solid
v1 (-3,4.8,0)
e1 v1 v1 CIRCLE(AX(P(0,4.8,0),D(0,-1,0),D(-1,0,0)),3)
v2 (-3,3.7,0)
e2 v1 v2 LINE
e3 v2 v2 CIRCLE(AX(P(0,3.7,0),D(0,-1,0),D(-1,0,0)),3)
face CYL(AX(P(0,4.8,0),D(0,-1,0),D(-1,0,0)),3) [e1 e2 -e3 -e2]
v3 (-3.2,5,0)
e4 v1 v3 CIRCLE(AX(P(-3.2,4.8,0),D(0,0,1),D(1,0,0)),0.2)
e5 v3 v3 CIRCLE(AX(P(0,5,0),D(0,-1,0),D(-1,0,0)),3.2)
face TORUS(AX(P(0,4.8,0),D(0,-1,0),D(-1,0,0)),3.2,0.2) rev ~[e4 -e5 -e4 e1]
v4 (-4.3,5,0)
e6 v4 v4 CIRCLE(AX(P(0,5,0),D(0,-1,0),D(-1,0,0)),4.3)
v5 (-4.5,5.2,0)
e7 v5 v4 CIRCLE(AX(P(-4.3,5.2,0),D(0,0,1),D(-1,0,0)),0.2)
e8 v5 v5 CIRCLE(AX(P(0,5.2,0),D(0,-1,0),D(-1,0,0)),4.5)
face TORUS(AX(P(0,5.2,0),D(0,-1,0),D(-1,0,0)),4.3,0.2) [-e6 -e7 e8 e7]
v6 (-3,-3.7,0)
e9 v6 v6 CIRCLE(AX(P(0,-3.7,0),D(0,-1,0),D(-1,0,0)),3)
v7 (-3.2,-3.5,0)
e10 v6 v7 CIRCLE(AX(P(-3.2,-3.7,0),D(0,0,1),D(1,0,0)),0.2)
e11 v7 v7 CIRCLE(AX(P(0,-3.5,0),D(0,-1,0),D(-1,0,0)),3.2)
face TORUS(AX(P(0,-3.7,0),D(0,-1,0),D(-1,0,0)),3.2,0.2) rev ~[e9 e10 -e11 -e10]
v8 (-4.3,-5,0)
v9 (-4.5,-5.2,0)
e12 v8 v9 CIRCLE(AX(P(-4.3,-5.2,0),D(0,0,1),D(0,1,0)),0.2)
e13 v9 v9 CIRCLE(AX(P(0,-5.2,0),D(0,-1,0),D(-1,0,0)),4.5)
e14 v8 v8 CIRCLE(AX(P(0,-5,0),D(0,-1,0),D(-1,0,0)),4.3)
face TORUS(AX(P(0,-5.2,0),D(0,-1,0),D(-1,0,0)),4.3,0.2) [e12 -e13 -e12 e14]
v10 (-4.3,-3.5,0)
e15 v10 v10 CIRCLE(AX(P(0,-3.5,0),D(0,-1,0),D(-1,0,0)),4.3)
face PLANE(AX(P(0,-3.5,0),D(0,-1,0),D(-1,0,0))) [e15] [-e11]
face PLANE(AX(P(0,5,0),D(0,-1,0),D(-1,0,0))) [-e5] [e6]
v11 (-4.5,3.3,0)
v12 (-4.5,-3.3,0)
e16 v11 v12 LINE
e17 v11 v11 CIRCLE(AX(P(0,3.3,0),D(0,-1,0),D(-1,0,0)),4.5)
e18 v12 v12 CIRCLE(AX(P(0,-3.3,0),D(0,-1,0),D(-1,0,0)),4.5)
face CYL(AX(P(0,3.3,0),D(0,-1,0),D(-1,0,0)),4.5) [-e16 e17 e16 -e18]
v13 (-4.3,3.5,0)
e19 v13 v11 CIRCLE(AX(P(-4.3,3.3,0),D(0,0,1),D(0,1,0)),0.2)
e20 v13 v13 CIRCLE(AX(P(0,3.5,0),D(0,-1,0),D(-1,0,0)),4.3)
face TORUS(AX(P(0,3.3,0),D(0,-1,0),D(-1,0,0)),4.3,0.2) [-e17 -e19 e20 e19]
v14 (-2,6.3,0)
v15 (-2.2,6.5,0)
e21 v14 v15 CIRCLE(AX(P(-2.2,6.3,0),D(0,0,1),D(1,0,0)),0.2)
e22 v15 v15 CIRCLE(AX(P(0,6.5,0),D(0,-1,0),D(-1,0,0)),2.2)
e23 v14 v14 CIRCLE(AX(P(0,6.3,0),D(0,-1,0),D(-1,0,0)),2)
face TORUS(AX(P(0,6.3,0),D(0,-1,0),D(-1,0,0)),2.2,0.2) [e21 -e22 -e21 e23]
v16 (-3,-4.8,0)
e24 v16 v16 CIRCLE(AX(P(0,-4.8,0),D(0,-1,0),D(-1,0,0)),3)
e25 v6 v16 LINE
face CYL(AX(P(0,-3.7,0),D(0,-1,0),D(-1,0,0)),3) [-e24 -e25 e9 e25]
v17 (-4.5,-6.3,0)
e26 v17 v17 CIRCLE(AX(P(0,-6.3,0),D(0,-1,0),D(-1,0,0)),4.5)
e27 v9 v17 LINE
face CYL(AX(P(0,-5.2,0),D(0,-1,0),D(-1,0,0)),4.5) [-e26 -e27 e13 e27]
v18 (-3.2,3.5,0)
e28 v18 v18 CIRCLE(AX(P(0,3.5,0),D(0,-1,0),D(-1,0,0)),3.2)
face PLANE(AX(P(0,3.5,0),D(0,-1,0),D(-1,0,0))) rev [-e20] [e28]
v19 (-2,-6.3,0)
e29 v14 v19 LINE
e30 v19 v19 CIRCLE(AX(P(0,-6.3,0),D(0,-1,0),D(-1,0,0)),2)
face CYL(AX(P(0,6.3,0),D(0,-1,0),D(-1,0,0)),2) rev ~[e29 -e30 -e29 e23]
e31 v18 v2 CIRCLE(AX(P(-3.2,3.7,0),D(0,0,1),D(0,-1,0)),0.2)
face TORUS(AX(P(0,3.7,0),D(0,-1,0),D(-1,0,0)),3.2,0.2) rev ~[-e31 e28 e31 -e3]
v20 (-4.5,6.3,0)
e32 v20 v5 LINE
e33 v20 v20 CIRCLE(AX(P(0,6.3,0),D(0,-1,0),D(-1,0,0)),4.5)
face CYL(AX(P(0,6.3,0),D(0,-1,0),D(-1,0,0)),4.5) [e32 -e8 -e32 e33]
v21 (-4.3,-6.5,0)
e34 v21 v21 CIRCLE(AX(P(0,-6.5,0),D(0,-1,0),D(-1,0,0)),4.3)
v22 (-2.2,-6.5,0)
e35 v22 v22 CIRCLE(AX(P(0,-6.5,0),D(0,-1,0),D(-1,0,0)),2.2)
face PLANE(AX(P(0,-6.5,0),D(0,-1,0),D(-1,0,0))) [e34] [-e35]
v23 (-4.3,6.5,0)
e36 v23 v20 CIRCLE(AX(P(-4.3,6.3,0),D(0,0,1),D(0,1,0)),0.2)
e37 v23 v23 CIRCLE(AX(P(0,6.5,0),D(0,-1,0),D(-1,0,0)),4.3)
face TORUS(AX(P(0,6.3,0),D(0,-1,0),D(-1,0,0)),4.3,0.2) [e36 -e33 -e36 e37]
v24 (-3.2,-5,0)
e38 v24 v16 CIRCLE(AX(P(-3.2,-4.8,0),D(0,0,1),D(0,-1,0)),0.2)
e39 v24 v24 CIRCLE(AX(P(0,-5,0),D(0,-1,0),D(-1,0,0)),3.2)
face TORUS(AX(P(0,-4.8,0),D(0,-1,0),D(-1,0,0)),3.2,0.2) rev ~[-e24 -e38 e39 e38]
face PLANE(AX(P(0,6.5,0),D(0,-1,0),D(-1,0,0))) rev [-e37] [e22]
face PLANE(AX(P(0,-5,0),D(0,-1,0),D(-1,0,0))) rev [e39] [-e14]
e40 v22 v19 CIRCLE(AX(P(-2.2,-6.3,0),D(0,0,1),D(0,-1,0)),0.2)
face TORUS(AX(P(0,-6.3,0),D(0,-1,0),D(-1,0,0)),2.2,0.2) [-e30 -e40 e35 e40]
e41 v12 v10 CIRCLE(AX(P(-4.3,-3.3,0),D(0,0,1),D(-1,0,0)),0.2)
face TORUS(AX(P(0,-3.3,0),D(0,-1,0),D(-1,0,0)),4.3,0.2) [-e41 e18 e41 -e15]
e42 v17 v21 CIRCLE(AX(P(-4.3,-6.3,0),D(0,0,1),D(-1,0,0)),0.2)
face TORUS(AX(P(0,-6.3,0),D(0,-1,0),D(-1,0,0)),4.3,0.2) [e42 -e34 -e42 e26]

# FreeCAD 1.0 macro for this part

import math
import FreeCAD as App
import Part
import Sketcher
from FreeCAD import Vector
Q = App.Units.Quantity

doc = App.newDocument("Part")
body = doc.addObject("PartDesign::Body", "Body")

# Sketch on XY plane
sketch1 = body.newObject("Sketcher::SketchObject", "Sketch")
sketch1.AttachmentSupport = (doc.getObject("XY_Plane"), [""])
sketch1.MapMode = "FlatFace"
sketch1.addGeometry([
    Part.ArcOfCircle(Part.Circle(Vector(-2.2, 6.3, 0), Vector(0, 0, 1), 0.2), math.radians(0), math.radians(90)),  # 0
    Part.LineSegment(Vector(-2.2, 6.5, 0), Vector(-4.3, 6.5, 0)),  # 1
    Part.ArcOfCircle(Part.Circle(Vector(-4.3, 6.3, 0), Vector(0, 0, 1), 0.2), math.radians(90), math.radians(180)),  # 2
    Part.LineSegment(Vector(-4.5, 6.3, 0), Vector(-4.5, 5.2, 0)),  # 3
    Part.ArcOfCircle(Part.Circle(Vector(-4.3, 5.2, 0), Vector(0, 0, 1), 0.2), math.radians(180), math.radians(270)),  # 4
    Part.LineSegment(Vector(-4.3, 5, 0), Vector(-3.2, 5, 0)),  # 5
    Part.ArcOfCircle(Part.Circle(Vector(-3.2, 4.8, 0), Vector(0, 0, 1), 0.2), math.radians(0), math.radians(90)),  # 6
    Part.LineSegment(Vector(-3, 4.8, 0), Vector(-3, 3.7, 0)),  # 7
    Part.ArcOfCircle(Part.Circle(Vector(-3.2, 3.7, 0), Vector(0, 0, 1), 0.2), math.radians(-90), math.radians(0)),  # 8
    Part.LineSegment(Vector(-3.2, 3.5, 0), Vector(-4.3, 3.5, 0)),  # 9
    Part.ArcOfCircle(Part.Circle(Vector(-4.3, 3.3, 0), Vector(0, 0, 1), 0.2), math.radians(90), math.radians(180)),  # 10
    Part.LineSegment(Vector(-4.5, 3.3, 0), Vector(-4.5, -3.3, 0)),  # 11
    Part.ArcOfCircle(Part.Circle(Vector(-4.3, -3.3, 0), Vector(0, 0, 1), 0.2), math.radians(180), math.radians(270)),  # 12
    Part.LineSegment(Vector(-4.3, -3.5, 0), Vector(-3.2, -3.5, 0)),  # 13
    Part.ArcOfCircle(Part.Circle(Vector(-3.2, -3.7, 0), Vector(0, 0, 1), 0.2), math.radians(0), math.radians(90)),  # 14
    Part.LineSegment(Vector(-3, -3.7, 0), Vector(-3, -4.8, 0)),  # 15
    Part.ArcOfCircle(Part.Circle(Vector(-3.2, -4.8, 0), Vector(0, 0, 1), 0.2), math.radians(-90), math.radians(0)),  # 16
    Part.LineSegment(Vector(-3.2, -5, 0), Vector(-4.3, -5, 0)),  # 17
    Part.ArcOfCircle(Part.Circle(Vector(-4.3, -5.2, 0), Vector(0, 0, 1), 0.2), math.radians(90), math.radians(180)),  # 18
    Part.LineSegment(Vector(-4.5, -5.2, 0), Vector(-4.5, -6.3, 0)),  # 19
    Part.ArcOfCircle(Part.Circle(Vector(-4.3, -6.3, 0), Vector(0, 0, 1), 0.2), math.radians(180), math.radians(270)),  # 20
    Part.LineSegment(Vector(-4.3, -6.5, 0), Vector(-2.2, -6.5, 0)),  # 21
    Part.ArcOfCircle(Part.Circle(Vector(-2.2, -6.3, 0), Vector(0, 0, 1), 0.2), math.radians(-90), math.radians(0)),  # 22
    Part.LineSegment(Vector(-2, -6.3, 0), Vector(-2, 6.3, 0)),  # 23
], False)
sketch1.addConstraint([
    Sketcher.Constraint("Tangent", 0, 2, 1, 1),
    Sketcher.Constraint("Tangent", 1, 2, 2, 1),
    Sketcher.Constraint("Tangent", 2, 2, 3, 1),
    Sketcher.Constraint("Tangent", 3, 2, 4, 1),
    Sketcher.Constraint("Tangent", 4, 2, 5, 1),
    Sketcher.Constraint("Tangent", 5, 2, 6, 2),
    Sketcher.Constraint("Tangent", 6, 1, 7, 1),
    Sketcher.Constraint("Tangent", 7, 2, 8, 2),
    Sketcher.Constraint("Tangent", 8, 1, 9, 1),
    Sketcher.Constraint("Tangent", 9, 2, 10, 1),
    Sketcher.Constraint("Tangent", 10, 2, 11, 1),
    Sketcher.Constraint("Tangent", 11, 2, 12, 1),
    Sketcher.Constraint("Tangent", 12, 2, 13, 1),
    Sketcher.Constraint("Tangent", 13, 2, 14, 2),
    Sketcher.Constraint("Tangent", 14, 1, 15, 1),
    Sketcher.Constraint("Tangent", 15, 2, 16, 2),
    Sketcher.Constraint("Tangent", 16, 1, 17, 1),
    Sketcher.Constraint("Tangent", 17, 2, 18, 1),
    Sketcher.Constraint("Tangent", 18, 2, 19, 1),
    Sketcher.Constraint("Tangent", 19, 2, 20, 1),
    Sketcher.Constraint("Tangent", 20, 2, 21, 1),
    Sketcher.Constraint("Tangent", 21, 2, 22, 1),
    Sketcher.Constraint("Tangent", 22, 2, 23, 1),
    Sketcher.Constraint("Tangent", 23, 2, 0, 1),
    Sketcher.Constraint("Horizontal", 1),
    Sketcher.Constraint("Vertical", 3),
    Sketcher.Constraint("Horizontal", 5),
    Sketcher.Constraint("Vertical", 7),
    Sketcher.Constraint("Horizontal", 9),
    Sketcher.Constraint("Vertical", 11),
    Sketcher.Constraint("Horizontal", 13),
    Sketcher.Constraint("Vertical", 15),
    Sketcher.Constraint("Horizontal", 17),
    Sketcher.Constraint("Vertical", 19),
    Sketcher.Constraint("Horizontal", 21),
    Sketcher.Constraint("Vertical", 23),
    Sketcher.Constraint("Equal", 0, 2),
    Sketcher.Constraint("Equal", 2, 4),
    Sketcher.Constraint("Equal", 4, 6),
    Sketcher.Constraint("Equal", 6, 8),
    Sketcher.Constraint("Equal", 8, 10),
    Sketcher.Constraint("Equal", 10, 12),
    Sketcher.Constraint("Equal", 12, 14),
    Sketcher.Constraint("Equal", 14, 16),
    Sketcher.Constraint("Equal", 16, 18),
    Sketcher.Constraint("Equal", 18, 20),
    Sketcher.Constraint("Equal", 20, 22),
    Sketcher.Constraint("Symmetric", 8, 3, 14, 3, -1),
    Sketcher.Constraint("Symmetric", 4, 3, 18, 3, -1),
    Sketcher.Constraint("Vertical", 4, 3, 10, 3),
    Sketcher.Constraint("Equal", 17, 3),
    Sketcher.Constraint("Equal", 3, 7),
    Sketcher.Constraint("Equal", 15, 19),
    Sketcher.Constraint("Radius", 0, Q("0.2 mm")),
    Sketcher.Constraint("DistanceX", 6, 1, -1, 1, Q("3 mm")),
    Sketcher.Constraint("DistanceY", 10, 3, 2, 3, Q("3 mm")),
    Sketcher.Constraint("DistanceX", 1, 2, 1, 1, Q("2.1 mm")),
    Sketcher.Constraint("DistanceY", 11, 2, 11, 1, Q("6.6 mm")),
])
revolution = body.newObject("PartDesign::Revolution", "Revolution")
revolution.Profile = sketch1
revolution.ReferenceAxis = (sketch1, ["V_Axis"])
revolution.Angle = 360

doc.recompute()
